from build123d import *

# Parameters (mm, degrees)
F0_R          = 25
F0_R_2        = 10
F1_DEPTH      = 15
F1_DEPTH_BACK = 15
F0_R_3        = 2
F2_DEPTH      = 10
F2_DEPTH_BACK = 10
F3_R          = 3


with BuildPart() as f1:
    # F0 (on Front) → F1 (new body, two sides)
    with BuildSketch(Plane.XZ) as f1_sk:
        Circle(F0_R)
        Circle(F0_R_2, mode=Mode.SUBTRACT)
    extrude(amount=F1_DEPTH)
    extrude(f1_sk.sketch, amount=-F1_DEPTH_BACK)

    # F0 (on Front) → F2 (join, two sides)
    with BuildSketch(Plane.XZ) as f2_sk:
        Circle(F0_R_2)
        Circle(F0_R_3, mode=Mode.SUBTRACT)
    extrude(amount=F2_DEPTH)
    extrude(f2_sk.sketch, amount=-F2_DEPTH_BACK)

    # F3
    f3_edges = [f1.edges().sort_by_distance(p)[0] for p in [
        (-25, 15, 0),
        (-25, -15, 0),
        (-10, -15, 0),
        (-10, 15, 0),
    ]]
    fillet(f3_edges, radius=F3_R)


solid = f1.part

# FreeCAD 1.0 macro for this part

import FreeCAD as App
import Part
import Sketcher

V = App.Vector


def edges_at(feature, points):
    """Names of the edges that pass closest to the given points."""
    edges = feature.Shape.Edges
    near = lambda p: min(range(len(edges)), key=lambda i: edges[i].distToShape(Part.Vertex(*p))[0])
    return sorted({f"Edge{near(p) + 1}" for p in points})

doc = App.newDocument("Part")
body = doc.addObject("PartDesign::Body", "Body")

sketch1 = doc.addObject("Sketcher::SketchObject", "Sketch")
body.addObject(sketch1)
sketch1.AttachmentSupport = (doc.XZ_Plane, [""])
sketch1.MapMode = "FlatFace"
sketch1.addGeometry(Part.Circle(V(0, 0, 0), V(0, 0, 1), 25), False)
sketch1.addGeometry(Part.Circle(V(0, 0, 0), V(0, 0, 1), 10), False)
sketch1.addConstraint(Sketcher.Constraint("Coincident", 0, 3, -1, 1))
sketch1.addConstraint(Sketcher.Constraint("Coincident", 1, 3, -1, 1))
sketch1.addConstraint(Sketcher.Constraint("Diameter", 0, 50.0))
sketch1.addConstraint(Sketcher.Constraint("Diameter", 1, 20.0))
pad1 = doc.addObject("PartDesign::Pad", "Pad")
body.addObject(pad1)
pad1.Profile = sketch1
pad1.Type = "TwoLengths"
pad1.Length = 15
pad1.Length2 = 15

sketch2 = doc.addObject("Sketcher::SketchObject", "Sketch001")
body.addObject(sketch2)
sketch2.AttachmentSupport = (doc.XZ_Plane, [""])
sketch2.MapMode = "FlatFace"
sketch2.addGeometry(Part.Circle(V(0, 0, 0), V(0, 0, 1), 10), False)
sketch2.addGeometry(Part.Circle(V(0, 0, 0), V(0, 0, 1), 2), False)
sketch2.addConstraint(Sketcher.Constraint("Coincident", 0, 3, -1, 1))
sketch2.addConstraint(Sketcher.Constraint("Coincident", 1, 3, -1, 1))
sketch2.addConstraint(Sketcher.Constraint("Diameter", 0, 20.0))
sketch2.addConstraint(Sketcher.Constraint("Diameter", 1, 4.0))
pad2 = doc.addObject("PartDesign::Pad", "Pad001")
body.addObject(pad2)
pad2.Profile = sketch2
pad2.Type = "TwoLengths"
pad2.Length = 10
pad2.Length2 = 10
doc.recompute()

fillet = doc.addObject("PartDesign::Fillet", "Fillet")
body.addObject(fillet)
fillet.Base = (pad2, edges_at(pad2, [
    (-25, 15, 0),
    (-25, -15, 0),
    (-10, -15, 0),
    (-10, 15, 0),
]))
fillet.Radius = 3

doc.recompute()
